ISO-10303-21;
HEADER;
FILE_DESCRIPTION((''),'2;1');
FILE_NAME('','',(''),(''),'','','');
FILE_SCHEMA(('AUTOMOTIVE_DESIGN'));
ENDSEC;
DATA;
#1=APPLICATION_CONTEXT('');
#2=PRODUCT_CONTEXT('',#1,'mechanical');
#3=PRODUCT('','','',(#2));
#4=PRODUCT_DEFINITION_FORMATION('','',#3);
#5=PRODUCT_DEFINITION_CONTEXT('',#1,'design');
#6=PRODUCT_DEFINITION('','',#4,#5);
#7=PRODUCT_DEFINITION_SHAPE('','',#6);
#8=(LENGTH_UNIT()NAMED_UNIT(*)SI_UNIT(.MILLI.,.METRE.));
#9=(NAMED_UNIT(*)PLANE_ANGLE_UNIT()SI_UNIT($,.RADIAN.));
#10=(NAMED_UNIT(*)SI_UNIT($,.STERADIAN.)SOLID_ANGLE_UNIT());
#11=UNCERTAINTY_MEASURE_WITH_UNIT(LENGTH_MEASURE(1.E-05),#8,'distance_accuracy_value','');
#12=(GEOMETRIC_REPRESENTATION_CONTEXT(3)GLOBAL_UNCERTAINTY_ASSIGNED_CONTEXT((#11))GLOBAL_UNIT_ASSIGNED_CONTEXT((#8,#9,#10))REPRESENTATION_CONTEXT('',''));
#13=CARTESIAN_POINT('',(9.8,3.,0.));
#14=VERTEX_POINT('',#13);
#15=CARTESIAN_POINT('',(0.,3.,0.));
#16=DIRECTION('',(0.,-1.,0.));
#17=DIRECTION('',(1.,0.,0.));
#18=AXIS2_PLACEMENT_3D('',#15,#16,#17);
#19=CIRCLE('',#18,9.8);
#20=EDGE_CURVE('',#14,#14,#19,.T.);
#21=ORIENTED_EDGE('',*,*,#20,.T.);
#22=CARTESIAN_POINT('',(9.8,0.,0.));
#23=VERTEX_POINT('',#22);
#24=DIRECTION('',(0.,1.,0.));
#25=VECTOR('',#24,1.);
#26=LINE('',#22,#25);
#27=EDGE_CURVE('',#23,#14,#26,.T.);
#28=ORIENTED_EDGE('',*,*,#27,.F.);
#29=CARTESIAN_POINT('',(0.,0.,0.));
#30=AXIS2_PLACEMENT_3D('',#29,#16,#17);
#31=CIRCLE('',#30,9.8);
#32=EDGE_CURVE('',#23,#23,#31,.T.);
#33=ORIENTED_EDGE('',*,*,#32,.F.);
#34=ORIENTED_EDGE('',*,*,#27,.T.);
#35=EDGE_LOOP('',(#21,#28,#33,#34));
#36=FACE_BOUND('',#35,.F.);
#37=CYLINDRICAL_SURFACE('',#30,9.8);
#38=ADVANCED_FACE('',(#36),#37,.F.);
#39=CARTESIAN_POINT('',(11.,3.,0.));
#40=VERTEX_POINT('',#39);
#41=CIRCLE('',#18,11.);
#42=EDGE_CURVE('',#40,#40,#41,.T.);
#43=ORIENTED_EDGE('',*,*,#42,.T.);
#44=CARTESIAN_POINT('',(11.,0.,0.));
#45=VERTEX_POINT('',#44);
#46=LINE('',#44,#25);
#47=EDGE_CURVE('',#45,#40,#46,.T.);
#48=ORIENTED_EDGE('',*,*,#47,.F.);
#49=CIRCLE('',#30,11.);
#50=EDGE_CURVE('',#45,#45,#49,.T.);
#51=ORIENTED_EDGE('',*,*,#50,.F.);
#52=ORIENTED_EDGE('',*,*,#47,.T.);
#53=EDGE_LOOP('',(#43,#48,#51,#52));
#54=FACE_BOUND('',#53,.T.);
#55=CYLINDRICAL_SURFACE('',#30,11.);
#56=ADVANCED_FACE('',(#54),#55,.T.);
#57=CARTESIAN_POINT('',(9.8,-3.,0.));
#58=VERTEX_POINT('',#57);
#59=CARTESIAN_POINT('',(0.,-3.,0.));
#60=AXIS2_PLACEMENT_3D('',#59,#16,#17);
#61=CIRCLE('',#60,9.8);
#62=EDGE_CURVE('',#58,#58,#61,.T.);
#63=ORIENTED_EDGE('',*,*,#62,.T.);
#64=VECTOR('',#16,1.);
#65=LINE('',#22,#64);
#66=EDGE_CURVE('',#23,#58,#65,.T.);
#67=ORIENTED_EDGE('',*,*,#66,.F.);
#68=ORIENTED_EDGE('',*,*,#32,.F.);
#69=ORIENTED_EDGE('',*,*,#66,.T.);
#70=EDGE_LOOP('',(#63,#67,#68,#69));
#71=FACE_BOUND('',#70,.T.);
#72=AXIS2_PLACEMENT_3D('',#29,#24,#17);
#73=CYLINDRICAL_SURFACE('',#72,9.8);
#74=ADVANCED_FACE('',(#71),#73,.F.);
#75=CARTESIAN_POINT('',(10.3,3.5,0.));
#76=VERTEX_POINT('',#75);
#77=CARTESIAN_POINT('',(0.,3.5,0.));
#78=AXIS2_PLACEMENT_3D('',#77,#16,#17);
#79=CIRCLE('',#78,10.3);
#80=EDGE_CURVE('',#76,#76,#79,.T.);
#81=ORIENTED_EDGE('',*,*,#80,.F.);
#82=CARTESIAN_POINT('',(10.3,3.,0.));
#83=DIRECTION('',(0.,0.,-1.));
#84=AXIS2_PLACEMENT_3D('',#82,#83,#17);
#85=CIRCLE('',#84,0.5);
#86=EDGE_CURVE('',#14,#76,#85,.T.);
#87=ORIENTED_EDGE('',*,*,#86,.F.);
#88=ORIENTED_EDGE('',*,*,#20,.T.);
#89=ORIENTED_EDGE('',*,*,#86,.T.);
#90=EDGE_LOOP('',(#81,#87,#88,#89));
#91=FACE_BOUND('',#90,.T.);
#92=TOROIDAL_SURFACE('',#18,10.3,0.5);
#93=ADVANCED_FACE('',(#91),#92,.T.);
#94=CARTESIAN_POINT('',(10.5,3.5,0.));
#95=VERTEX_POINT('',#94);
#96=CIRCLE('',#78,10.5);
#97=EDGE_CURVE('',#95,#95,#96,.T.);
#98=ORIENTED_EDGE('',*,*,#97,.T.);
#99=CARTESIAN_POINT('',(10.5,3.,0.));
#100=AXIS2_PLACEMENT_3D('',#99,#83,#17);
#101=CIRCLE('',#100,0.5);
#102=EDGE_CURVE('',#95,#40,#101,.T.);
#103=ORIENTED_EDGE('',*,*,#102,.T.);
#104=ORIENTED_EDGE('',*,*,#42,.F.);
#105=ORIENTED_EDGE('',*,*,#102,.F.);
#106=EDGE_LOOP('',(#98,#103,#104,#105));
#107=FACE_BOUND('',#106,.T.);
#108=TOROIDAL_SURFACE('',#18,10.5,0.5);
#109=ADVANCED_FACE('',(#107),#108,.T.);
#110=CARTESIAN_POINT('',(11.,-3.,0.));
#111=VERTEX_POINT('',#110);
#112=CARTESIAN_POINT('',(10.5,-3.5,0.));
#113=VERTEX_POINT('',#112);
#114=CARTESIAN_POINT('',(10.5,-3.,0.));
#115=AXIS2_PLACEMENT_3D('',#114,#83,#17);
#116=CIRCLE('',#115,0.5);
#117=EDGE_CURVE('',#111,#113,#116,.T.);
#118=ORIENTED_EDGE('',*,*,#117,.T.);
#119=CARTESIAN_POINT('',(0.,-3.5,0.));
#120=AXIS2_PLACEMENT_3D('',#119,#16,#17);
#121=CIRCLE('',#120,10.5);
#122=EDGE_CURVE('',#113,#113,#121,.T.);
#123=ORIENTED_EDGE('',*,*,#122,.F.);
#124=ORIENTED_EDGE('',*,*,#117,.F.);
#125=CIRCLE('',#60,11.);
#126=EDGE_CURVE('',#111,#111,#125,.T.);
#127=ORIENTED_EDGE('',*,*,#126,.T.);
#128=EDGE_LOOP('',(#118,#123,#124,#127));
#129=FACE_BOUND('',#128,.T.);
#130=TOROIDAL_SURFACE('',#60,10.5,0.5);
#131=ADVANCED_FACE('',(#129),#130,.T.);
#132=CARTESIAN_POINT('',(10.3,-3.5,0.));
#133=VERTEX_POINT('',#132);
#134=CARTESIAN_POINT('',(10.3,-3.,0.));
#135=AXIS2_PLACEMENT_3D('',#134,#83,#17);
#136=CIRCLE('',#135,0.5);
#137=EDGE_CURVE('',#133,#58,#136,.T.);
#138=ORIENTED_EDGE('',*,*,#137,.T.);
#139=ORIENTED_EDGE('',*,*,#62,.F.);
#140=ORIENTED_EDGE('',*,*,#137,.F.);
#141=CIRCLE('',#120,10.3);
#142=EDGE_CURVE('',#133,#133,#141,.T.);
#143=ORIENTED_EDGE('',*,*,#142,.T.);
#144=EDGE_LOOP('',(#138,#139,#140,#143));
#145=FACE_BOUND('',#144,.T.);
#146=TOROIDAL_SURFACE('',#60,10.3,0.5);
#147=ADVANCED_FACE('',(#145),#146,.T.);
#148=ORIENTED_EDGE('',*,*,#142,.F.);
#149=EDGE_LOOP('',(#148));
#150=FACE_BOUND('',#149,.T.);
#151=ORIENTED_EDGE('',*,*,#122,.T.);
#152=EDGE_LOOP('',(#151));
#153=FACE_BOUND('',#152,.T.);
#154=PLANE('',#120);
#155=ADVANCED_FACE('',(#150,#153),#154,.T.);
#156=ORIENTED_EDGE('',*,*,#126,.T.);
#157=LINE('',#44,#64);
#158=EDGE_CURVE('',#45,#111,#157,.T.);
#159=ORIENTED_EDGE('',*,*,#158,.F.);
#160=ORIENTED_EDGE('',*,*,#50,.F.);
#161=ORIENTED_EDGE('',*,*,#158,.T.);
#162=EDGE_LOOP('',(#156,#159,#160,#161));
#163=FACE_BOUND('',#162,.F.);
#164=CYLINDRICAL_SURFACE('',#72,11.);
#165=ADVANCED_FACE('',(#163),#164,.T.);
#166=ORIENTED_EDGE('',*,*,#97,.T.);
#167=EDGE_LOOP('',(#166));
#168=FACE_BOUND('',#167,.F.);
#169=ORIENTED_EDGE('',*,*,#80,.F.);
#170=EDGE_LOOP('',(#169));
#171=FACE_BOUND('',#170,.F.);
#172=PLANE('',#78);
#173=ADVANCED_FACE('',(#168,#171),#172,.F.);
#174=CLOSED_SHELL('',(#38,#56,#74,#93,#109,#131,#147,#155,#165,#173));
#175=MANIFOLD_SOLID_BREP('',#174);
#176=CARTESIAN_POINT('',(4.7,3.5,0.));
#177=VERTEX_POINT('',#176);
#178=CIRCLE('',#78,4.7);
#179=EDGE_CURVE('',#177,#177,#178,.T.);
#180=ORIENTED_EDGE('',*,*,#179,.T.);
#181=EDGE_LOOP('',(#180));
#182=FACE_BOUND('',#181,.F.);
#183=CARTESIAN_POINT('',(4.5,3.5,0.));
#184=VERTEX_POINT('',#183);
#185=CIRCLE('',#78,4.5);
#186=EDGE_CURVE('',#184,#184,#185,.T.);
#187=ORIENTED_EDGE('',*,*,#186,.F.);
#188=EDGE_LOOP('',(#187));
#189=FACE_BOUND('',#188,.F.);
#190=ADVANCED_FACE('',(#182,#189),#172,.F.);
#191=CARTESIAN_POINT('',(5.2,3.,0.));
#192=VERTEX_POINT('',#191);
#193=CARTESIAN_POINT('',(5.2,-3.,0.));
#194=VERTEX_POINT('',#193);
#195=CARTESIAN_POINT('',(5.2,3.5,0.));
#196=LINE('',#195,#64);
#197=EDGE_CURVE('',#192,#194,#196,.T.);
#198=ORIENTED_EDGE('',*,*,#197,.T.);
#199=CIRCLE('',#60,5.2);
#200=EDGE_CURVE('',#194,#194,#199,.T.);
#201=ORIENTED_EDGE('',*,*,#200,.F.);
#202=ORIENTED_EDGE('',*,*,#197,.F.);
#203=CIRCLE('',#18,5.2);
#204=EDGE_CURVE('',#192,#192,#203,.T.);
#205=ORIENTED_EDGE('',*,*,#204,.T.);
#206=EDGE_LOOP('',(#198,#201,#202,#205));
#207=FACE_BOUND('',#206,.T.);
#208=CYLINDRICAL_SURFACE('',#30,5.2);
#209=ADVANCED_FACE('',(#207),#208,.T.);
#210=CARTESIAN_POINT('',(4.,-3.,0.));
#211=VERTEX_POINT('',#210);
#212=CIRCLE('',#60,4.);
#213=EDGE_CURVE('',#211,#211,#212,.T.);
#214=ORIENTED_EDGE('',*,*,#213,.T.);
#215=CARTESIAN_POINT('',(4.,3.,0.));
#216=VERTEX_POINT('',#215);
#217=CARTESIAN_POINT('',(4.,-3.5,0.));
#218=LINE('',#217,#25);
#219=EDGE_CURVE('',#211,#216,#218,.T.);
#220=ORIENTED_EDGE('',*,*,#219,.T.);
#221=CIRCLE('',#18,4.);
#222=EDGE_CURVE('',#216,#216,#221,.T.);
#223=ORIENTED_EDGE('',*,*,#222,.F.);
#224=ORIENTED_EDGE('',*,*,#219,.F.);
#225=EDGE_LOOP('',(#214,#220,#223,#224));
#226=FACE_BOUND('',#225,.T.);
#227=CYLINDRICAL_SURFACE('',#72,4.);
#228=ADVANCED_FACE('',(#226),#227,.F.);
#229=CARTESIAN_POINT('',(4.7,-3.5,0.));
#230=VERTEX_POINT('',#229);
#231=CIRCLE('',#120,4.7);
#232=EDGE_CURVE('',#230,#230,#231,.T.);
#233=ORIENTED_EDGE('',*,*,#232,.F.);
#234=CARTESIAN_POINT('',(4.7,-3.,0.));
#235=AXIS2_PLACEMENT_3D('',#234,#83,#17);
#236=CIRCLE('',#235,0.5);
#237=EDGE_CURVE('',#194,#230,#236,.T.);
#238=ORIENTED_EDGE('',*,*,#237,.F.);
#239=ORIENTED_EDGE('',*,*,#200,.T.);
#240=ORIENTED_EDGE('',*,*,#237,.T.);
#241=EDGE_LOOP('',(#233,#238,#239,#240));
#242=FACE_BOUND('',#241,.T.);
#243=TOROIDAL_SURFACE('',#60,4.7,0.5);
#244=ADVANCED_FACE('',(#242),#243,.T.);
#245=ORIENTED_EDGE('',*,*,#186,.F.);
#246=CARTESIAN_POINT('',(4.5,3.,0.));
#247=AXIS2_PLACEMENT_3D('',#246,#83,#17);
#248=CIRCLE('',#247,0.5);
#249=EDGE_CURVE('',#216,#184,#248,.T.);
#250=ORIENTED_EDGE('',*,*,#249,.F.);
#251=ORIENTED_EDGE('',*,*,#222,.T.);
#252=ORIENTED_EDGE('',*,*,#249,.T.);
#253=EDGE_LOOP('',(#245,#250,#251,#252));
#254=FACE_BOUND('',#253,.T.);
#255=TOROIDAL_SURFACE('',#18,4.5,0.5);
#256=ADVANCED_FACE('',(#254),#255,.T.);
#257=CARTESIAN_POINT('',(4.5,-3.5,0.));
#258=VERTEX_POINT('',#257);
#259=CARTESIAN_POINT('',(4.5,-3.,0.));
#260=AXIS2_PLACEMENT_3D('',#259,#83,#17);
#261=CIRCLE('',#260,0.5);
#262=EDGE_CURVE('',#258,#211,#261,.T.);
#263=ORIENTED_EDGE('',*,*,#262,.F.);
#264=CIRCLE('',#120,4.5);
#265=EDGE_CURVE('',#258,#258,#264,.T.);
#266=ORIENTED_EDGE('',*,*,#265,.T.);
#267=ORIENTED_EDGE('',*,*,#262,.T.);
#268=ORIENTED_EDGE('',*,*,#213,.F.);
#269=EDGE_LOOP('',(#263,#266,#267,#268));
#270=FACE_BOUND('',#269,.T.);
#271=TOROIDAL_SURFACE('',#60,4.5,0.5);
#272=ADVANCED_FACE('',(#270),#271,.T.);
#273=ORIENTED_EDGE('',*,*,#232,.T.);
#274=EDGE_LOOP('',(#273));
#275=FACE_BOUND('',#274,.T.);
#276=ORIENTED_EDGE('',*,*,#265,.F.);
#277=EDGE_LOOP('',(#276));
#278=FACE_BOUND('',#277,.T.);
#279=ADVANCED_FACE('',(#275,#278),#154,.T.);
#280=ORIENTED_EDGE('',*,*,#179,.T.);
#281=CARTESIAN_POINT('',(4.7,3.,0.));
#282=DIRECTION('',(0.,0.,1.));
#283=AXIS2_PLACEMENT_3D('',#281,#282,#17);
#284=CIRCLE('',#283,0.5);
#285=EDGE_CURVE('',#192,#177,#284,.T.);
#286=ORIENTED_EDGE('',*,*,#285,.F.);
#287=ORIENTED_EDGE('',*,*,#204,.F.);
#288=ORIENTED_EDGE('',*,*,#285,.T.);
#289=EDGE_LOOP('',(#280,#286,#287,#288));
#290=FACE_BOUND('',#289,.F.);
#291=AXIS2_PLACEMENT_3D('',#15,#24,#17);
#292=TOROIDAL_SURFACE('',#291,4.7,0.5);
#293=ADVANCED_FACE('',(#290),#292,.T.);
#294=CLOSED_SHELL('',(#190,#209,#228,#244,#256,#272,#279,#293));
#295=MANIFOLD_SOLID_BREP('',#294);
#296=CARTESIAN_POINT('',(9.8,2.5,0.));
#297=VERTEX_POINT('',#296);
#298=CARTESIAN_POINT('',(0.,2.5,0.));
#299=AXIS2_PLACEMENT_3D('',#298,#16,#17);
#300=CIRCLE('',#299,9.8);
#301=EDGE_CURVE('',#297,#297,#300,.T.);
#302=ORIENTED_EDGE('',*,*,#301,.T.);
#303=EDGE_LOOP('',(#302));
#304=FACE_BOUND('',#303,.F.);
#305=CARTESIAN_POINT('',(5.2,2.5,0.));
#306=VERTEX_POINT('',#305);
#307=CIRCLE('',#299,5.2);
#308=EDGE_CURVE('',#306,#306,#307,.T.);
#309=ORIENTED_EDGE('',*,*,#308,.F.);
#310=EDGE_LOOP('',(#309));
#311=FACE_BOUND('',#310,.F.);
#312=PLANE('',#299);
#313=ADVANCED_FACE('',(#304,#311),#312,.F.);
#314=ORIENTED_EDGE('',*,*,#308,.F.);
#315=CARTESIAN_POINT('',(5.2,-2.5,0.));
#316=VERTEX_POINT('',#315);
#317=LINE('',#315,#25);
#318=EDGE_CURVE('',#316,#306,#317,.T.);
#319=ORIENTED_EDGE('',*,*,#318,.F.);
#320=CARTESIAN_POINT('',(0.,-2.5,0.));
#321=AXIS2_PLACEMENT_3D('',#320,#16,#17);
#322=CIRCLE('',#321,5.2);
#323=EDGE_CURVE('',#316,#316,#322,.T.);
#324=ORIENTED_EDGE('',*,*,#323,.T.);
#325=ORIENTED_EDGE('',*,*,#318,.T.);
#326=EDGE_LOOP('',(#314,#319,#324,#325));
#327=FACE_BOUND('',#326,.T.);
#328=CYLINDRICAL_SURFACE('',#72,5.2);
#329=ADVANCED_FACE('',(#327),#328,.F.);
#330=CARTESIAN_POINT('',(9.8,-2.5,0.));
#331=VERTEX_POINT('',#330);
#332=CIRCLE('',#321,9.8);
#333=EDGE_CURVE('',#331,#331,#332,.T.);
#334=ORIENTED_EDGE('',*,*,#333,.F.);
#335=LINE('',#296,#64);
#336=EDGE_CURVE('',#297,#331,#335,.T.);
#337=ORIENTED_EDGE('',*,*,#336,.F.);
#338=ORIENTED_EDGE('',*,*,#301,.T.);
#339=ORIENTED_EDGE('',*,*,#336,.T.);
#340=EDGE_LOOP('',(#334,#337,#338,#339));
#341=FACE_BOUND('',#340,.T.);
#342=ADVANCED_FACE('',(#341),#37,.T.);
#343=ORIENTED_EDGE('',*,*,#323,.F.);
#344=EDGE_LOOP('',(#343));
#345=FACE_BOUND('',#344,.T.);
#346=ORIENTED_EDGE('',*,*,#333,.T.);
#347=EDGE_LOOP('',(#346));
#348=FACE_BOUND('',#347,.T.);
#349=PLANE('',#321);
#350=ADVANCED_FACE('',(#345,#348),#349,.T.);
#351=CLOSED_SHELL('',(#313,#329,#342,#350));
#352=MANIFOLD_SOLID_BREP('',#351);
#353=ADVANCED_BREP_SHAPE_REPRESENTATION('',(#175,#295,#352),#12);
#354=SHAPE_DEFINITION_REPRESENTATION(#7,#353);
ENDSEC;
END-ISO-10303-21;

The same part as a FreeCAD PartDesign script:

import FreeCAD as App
import Part
import Sketcher


def edges_at(feature, points):
    """Names of the edges that pass closest to the given points."""
    edges = feature.Shape.Edges
    near = lambda p: min(range(len(edges)), key=lambda i: edges[i].distToShape(Part.Vertex(*p))[0])
    return sorted({f"Edge{near(p) + 1}" for p in points})

doc = App.newDocument("Part")
params = doc.addObject("Spreadsheet::Sheet", "Params")
for row, (alias, value) in enumerate([
    ("sketch1_diameter", "22 mm"),
    ("sketch1_diameter2", "8 mm"),
    ("sketch1_diameter3", "19.6 mm"),
    ("sketch1_diameter4", "10.4 mm"),
    ("pad1_length", "7 mm"),
    ("fillet_radius", "0.5 mm"),
    ("sketch2_diameter", "19.6 mm"),
    ("sketch2_diameter2", "10.4 mm"),
    ("pad2_length", "5 mm"),
], start=1):
    params.set(f"A{row}", alias)
    params.set(f"B{row}", "=" + value)
    params.setAlias(f"B{row}", alias)

body = doc.addObject("PartDesign::Body", "Body")
body.AllowCompound = True

# Sketch on XZ plane
sketch1 = body.newObject("Sketcher::SketchObject", "Sketch")
sketch1.AttachmentSupport = (doc.getObject("XZ_Plane"), [""])
sketch1.MapMode = "FlatFace"
sketch1.addGeometry([
    Part.Circle(App.Vector(0, 0, 0), App.Vector(0, 0, 1), 11),
    Part.Circle(App.Vector(0, 0, 0), App.Vector(0, 0, 1), 9.8),
    Part.Circle(App.Vector(0, 0, 0), App.Vector(0, 0, 1), 5.2),
    Part.Circle(App.Vector(0, 0, 0), App.Vector(0, 0, 1), 4),
], False)
sketch1.addConstraint([
    Sketcher.Constraint("Coincident", 0, 3, -1, 1),
    Sketcher.Constraint("Coincident", 1, 3, -1, 1),
    Sketcher.Constraint("Coincident", 2, 3, -1, 1),
    Sketcher.Constraint("Coincident", 3, 3, -1, 1),
    Sketcher.Constraint("Diameter", 0, 22.0),
    Sketcher.Constraint("Diameter", 3, 8.0),
    Sketcher.Constraint("Diameter", 1, 19.6),
    Sketcher.Constraint("Diameter", 2, 10.4),
])
sketch1.setExpression("Constraints[4]", "Params.sketch1_diameter")
sketch1.setExpression("Constraints[5]", "Params.sketch1_diameter2")
sketch1.setExpression("Constraints[6]", "Params.sketch1_diameter3")
sketch1.setExpression("Constraints[7]", "Params.sketch1_diameter4")
pad1 = body.newObject("PartDesign::Pad", "Pad")
pad1.Profile = sketch1
pad1.setExpression("Length", "Params.pad1_length")
pad1.Midplane = True
doc.recompute()

fillet = body.newObject("PartDesign::Fillet", "Fillet")
fillet.Base = (pad1, edges_at(pad1, [
    (-11, -3.5, 0),
    (-11, 3.5, 0),
    (-9.8, -3.5, 0),
    (-9.8, 3.5, 0),
    (-5.2, -3.5, 0),
    (-5.2, 3.5, 0),
    (-4, -3.5, 0),
    (-4, 3.5, 0),
]))
fillet.setExpression("Radius", "Params.fillet_radius")
body2 = doc.addObject("PartDesign::Body", "Body001")

# Sketch on XZ plane
sketch2 = body2.newObject("Sketcher::SketchObject", "Sketch001")
sketch2.AttachmentSupport = (doc.getObject("XZ_Plane001"), [""])
sketch2.MapMode = "FlatFace"
sketch2.addGeometry([
    Part.Circle(App.Vector(0, 0, 0), App.Vector(0, 0, 1), 10),
    Part.Circle(App.Vector(0, 0, 0), App.Vector(0, 0, 1), 5),
], False)
sketch2.addConstraint([
    Sketcher.Constraint("Coincident", 0, 3, -1, 1),
    Sketcher.Constraint("Coincident", 1, 3, -1, 1),
    Sketcher.Constraint("Diameter", 0, 19.6),
    Sketcher.Constraint("Diameter", 1, 10.4),
])
sketch2.setExpression("Constraints[2]", "Params.sketch2_diameter")
sketch2.setExpression("Constraints[3]", "Params.sketch2_diameter2")
pad2 = body2.newObject("PartDesign::Pad", "Pad001")
pad2.Profile = sketch2
pad2.setExpression("Length", "Params.pad2_length")
pad2.Midplane = True

doc.recompute()
